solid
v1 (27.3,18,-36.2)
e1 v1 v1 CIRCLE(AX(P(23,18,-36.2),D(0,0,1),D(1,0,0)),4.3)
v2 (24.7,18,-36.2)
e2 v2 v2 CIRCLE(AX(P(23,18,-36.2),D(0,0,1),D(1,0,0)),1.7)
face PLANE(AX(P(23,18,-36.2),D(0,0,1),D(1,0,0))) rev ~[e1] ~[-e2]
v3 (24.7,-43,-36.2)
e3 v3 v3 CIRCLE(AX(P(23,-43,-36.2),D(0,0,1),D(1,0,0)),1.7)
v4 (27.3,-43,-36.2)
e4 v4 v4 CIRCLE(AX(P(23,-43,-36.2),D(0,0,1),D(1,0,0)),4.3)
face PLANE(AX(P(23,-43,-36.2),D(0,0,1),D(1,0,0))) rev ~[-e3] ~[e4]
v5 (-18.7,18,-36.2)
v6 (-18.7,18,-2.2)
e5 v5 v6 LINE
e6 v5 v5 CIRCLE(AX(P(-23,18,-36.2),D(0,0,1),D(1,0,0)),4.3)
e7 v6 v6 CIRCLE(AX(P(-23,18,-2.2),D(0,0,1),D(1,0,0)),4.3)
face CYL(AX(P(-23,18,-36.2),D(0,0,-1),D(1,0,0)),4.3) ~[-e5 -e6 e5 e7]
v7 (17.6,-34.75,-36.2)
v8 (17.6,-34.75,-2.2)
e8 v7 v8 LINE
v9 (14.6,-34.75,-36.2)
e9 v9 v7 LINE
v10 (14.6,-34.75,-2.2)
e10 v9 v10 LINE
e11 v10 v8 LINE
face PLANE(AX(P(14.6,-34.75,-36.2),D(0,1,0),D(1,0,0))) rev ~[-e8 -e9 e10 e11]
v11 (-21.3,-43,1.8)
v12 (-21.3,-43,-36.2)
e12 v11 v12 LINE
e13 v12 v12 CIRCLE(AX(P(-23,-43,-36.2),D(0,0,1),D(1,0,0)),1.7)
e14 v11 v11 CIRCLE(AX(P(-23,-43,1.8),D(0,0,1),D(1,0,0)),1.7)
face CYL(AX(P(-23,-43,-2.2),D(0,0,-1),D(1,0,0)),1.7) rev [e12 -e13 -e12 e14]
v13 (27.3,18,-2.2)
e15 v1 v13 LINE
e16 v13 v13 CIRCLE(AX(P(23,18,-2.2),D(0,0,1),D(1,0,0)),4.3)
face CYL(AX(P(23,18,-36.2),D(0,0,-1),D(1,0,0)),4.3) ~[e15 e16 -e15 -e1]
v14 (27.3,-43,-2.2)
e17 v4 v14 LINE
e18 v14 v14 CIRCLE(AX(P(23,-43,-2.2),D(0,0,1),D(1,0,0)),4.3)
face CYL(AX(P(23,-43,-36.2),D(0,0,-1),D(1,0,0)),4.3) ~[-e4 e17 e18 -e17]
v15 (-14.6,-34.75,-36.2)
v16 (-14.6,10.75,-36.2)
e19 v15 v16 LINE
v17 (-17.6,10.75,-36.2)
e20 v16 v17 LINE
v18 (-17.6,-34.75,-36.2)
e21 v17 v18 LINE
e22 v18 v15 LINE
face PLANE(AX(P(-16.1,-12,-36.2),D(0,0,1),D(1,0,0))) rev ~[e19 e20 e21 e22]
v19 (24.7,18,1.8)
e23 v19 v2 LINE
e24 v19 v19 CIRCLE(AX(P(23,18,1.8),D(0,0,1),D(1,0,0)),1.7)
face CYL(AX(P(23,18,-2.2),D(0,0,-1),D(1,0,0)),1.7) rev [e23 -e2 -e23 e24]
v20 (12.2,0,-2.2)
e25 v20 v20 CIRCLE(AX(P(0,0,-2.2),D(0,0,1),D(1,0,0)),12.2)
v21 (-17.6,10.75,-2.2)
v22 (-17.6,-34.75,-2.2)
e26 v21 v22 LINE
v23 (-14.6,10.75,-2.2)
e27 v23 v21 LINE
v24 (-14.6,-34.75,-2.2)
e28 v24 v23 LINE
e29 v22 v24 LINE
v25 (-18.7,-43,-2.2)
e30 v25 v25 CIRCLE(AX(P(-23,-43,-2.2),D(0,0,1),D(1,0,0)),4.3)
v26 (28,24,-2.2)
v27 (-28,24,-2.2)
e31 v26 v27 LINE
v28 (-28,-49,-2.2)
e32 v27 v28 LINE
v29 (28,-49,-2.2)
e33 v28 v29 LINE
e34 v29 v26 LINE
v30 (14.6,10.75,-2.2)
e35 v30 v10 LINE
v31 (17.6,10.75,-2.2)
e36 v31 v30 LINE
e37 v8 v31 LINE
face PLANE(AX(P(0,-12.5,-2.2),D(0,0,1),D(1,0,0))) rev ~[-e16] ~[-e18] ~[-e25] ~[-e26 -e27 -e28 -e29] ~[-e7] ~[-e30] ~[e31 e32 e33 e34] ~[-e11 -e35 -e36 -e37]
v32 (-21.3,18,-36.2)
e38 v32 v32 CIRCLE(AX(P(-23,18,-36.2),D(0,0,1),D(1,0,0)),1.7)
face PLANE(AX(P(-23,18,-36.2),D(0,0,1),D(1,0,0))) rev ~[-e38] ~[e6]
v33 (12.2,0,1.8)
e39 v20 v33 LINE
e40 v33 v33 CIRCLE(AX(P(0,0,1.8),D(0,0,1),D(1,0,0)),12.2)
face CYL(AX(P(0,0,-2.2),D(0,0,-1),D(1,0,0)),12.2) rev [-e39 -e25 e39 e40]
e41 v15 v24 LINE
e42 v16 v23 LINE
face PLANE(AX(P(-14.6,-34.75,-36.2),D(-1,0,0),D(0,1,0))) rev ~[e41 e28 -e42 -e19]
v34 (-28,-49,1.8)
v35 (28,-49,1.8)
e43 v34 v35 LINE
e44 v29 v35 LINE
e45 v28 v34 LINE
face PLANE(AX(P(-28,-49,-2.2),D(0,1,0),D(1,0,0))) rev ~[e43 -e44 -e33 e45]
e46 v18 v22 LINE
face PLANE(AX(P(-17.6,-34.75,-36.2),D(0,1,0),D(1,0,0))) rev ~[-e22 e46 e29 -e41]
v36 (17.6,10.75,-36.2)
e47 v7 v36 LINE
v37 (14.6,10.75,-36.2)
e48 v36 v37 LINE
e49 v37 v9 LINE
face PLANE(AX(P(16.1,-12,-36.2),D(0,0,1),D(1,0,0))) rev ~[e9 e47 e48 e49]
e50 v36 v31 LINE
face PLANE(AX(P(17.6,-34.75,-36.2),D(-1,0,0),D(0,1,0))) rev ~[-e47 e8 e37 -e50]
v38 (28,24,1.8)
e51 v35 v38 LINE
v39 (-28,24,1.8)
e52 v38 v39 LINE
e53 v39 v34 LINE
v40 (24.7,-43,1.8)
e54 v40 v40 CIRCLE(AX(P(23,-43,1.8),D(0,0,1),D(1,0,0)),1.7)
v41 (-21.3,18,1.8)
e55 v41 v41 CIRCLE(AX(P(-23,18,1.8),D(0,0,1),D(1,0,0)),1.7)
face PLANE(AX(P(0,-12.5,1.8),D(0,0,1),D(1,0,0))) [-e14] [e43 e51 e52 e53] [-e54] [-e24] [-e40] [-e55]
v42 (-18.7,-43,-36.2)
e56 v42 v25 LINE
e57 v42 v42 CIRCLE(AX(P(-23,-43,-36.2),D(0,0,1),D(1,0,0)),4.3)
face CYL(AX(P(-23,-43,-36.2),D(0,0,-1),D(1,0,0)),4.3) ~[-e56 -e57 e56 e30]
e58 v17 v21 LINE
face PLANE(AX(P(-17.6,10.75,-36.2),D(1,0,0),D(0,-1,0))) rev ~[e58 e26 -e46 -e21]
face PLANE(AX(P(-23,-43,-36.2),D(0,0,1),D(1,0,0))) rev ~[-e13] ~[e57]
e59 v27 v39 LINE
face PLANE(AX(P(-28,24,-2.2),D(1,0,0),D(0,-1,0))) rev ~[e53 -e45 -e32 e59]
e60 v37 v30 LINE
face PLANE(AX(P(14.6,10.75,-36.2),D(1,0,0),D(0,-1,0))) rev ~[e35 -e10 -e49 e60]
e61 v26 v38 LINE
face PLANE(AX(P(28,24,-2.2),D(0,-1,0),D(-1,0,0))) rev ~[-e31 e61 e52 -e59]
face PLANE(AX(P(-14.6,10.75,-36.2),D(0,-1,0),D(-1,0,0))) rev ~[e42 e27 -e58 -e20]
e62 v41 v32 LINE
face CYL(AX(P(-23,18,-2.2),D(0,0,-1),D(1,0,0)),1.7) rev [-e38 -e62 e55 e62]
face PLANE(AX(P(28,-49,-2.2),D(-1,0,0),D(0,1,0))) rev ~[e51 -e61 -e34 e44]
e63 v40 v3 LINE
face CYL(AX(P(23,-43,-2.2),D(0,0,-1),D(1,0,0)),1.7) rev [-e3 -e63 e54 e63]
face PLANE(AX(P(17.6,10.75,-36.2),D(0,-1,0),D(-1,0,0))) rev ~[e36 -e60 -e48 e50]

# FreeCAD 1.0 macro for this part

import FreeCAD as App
import Part
import Sketcher

V = App.Vector


def add_polygon(sketch, points):
    """Adds a closed chain of lines whose ends are joined by coincident constraints."""
    first, n = sketch.GeometryCount, len(points)
    for a, b in zip(points, points[1:] + points[:1]):
        sketch.addGeometry(Part.LineSegment(App.Vector(*a, 0), App.Vector(*b, 0)), False)
    for i in range(n):
        sketch.addConstraint(Sketcher.Constraint("Coincident", first + i, 2, first + (i + 1) % n, 1))

doc = App.newDocument("Part")
body = doc.addObject("PartDesign::Body", "Body")

# Sketch on XY plane
sketch1 = body.newObject("Sketcher::SketchObject", "Sketch")
sketch1.AttachmentSupport = (doc.getObject("XY_Plane"), [""])
sketch1.MapMode = "FlatFace"
sketch1.AttachmentOffset = App.Placement(V(0, 0, -2.2), App.Rotation())
add_polygon(sketch1, [(-28, 24), (-28, -49), (28, -49), (28, 24)])  # lines 0-3
sketch1.addGeometry(Part.Circle(V(-23, -43, 0), V(0, 0, 1), 1.7), False)  # 4
sketch1.addGeometry(Part.Circle(V(23, -43, 0), V(0, 0, 1), 1.7), False)  # 5
sketch1.addGeometry(Part.Circle(V(-23, 18, 0), V(0, 0, 1), 1.7), False)  # 6
sketch1.addGeometry(Part.Circle(V(0, 0, 0), V(0, 0, 1), 12.2), False)  # 7
sketch1.addGeometry(Part.Circle(V(23, 18, 0), V(0, 0, 1), 1.7), False)  # 8
sketch1.addConstraint(Sketcher.Constraint("Vertical", 0))
sketch1.addConstraint(Sketcher.Constraint("Horizontal", 1))
sketch1.addConstraint(Sketcher.Constraint("Vertical", 2))
sketch1.addConstraint(Sketcher.Constraint("Horizontal", 3))
sketch1.addConstraint(Sketcher.Constraint("Coincident", 7, 3, -1, 1))
sketch1.addConstraint(Sketcher.Constraint("Equal", 4, 5))
sketch1.addConstraint(Sketcher.Constraint("Equal", 5, 6))
sketch1.addConstraint(Sketcher.Constraint("Equal", 6, 8))
sketch1.addConstraint(Sketcher.Constraint("Symmetric", 4, 3, 5, 3, -2))
sketch1.addConstraint(Sketcher.Constraint("Symmetric", 6, 3, 8, 3, -2))
sketch1.addConstraint(Sketcher.Constraint("Vertical", 4, 3, 6, 3))
sketch1.addConstraint(Sketcher.Constraint("Diameter", 4, 3.4))
sketch1.addConstraint(Sketcher.Constraint("Diameter", 7, 24.4))
sketch1.addConstraint(Sketcher.Constraint("DistanceX", 1, 1, 1, 2, 56.0))
sketch1.addConstraint(Sketcher.Constraint("DistanceY", 0, 2, 0, 1, 73.0))
sketch1.addConstraint(Sketcher.Constraint("DistanceX", 4, 3, -1, 1, 23.0))
sketch1.addConstraint(Sketcher.Constraint("DistanceY", 4, 3, -1, 1, 43.0))
sketch1.addConstraint(Sketcher.Constraint("DistanceY", -1, 1, 6, 3, 18.0))
sketch1.addConstraint(Sketcher.Constraint("DistanceX", 0, 2, -1, 1, 28.0))
sketch1.addConstraint(Sketcher.Constraint("DistanceY", 0, 2, -1, 1, 49.0))
pad1 = body.newObject("PartDesign::Pad", "Pad")
pad1.Profile = sketch1
pad1.Length = 4

# Sketch on XY plane
sketch2 = body.newObject("Sketcher::SketchObject", "Sketch001")
sketch2.AttachmentSupport = (doc.getObject("XY_Plane"), [""])
sketch2.MapMode = "FlatFace"
sketch2.AttachmentOffset = App.Placement(V(0, 0, -36.2), App.Rotation())
sketch2.addGeometry(Part.Circle(V(-23, -43, 0), V(0, 0, 1), 4.3), False)
sketch2.addGeometry(Part.Circle(V(-23, -43, 0), V(0, 0, 1), 1.7), False)
sketch2.addConstraint(Sketcher.Constraint("Coincident", 1, 3, 0, 3))
sketch2.addConstraint(Sketcher.Constraint("Diameter", 0, 8.6))
sketch2.addConstraint(Sketcher.Constraint("Diameter", 1, 3.4))
sketch2.addConstraint(Sketcher.Constraint("DistanceX", 0, 3, -1, 1, 23.0))
sketch2.addConstraint(Sketcher.Constraint("DistanceY", 0, 3, -1, 1, 43.0))
pad2 = body.newObject("PartDesign::Pad", "Pad001")
pad2.Profile = sketch2
pad2.Length = 34

# Sketch on XY plane
sketch3 = body.newObject("Sketcher::SketchObject", "Sketch002")
sketch3.AttachmentSupport = (doc.getObject("XY_Plane"), [""])
sketch3.MapMode = "FlatFace"
sketch3.AttachmentOffset = App.Placement(V(0, 0, -36.2), App.Rotation())
sketch3.addGeometry(Part.Circle(V(23, -43, 0), V(0, 0, 1), 4.3), False)
sketch3.addGeometry(Part.Circle(V(23, -43, 0), V(0, 0, 1), 1.7), False)
sketch3.addConstraint(Sketcher.Constraint("Coincident", 1, 3, 0, 3))
sketch3.addConstraint(Sketcher.Constraint("Diameter", 0, 8.6))
sketch3.addConstraint(Sketcher.Constraint("Diameter", 1, 3.4))
sketch3.addConstraint(Sketcher.Constraint("DistanceX", -1, 1, 0, 3, 23.0))
sketch3.addConstraint(Sketcher.Constraint("DistanceY", 0, 3, -1, 1, 43.0))
pad3 = body.newObject("PartDesign::Pad", "Pad002")
pad3.Profile = sketch3
pad3.Length = 34

# Sketch on XY plane
sketch4 = body.newObject("Sketcher::SketchObject", "Sketch003")
sketch4.AttachmentSupport = (doc.getObject("XY_Plane"), [""])
sketch4.MapMode = "FlatFace"
sketch4.AttachmentOffset = App.Placement(V(0, 0, -36.2), App.Rotation())
sketch4.addGeometry(Part.Circle(V(-23, 18, 0), V(0, 0, 1), 4.3), False)
sketch4.addGeometry(Part.Circle(V(-23, 18, 0), V(0, 0, 1), 1.7), False)
sketch4.addConstraint(Sketcher.Constraint("Coincident", 1, 3, 0, 3))
sketch4.addConstraint(Sketcher.Constraint("Diameter", 0, 8.6))
sketch4.addConstraint(Sketcher.Constraint("Diameter", 1, 3.4))
sketch4.addConstraint(Sketcher.Constraint("DistanceX", 0, 3, -1, 1, 23.0))
sketch4.addConstraint(Sketcher.Constraint("DistanceY", -1, 1, 0, 3, 18.0))
pad4 = body.newObject("PartDesign::Pad", "Pad003")
pad4.Profile = sketch4
pad4.Length = 34

# Sketch on XY plane
sketch5 = body.newObject("Sketcher::SketchObject", "Sketch004")
sketch5.AttachmentSupport = (doc.getObject("XY_Plane"), [""])
sketch5.MapMode = "FlatFace"
sketch5.AttachmentOffset = App.Placement(V(0, 0, -36.2), App.Rotation())
sketch5.addGeometry(Part.Circle(V(23, 18, 0), V(0, 0, 1), 4.3), False)
sketch5.addGeometry(Part.Circle(V(23, 18, 0), V(0, 0, 1), 1.7), False)
sketch5.addConstraint(Sketcher.Constraint("Coincident", 1, 3, 0, 3))
sketch5.addConstraint(Sketcher.Constraint("Diameter", 0, 8.6))
sketch5.addConstraint(Sketcher.Constraint("Diameter", 1, 3.4))
sketch5.addConstraint(Sketcher.Constraint("DistanceX", -1, 1, 0, 3, 23.0))
sketch5.addConstraint(Sketcher.Constraint("DistanceY", -1, 1, 0, 3, 18.0))
pad5 = body.newObject("PartDesign::Pad", "Pad004")
pad5.Profile = sketch5
pad5.Length = 34

# Sketch on XY plane
sketch6 = body.newObject("Sketcher::SketchObject", "Sketch005")
sketch6.AttachmentSupport = (doc.getObject("XY_Plane"), [""])
sketch6.MapMode = "FlatFace"
sketch6.AttachmentOffset = App.Placement(V(0, 0, -36.2), App.Rotation())
add_polygon(sketch6, [(-17.6, 10.8), (-17.6, -34.8), (-14.6, -34.8), (-14.6, 10.8)])  # lines 0-3
sketch6.addConstraint(Sketcher.Constraint("Vertical", 0))
sketch6.addConstraint(Sketcher.Constraint("Horizontal", 1))
sketch6.addConstraint(Sketcher.Constraint("Vertical", 2))
sketch6.addConstraint(Sketcher.Constraint("Horizontal", 3))
sketch6.addConstraint(Sketcher.Constraint("DistanceX", 1, 1, 1, 2, 3.0))
sketch6.addConstraint(Sketcher.Constraint("DistanceY", 0, 2, 0, 1, 45.5))
sketch6.addConstraint(Sketcher.Constraint("DistanceX", 0, 2, -1, 1, 17.6))
sketch6.addConstraint(Sketcher.Constraint("DistanceY", 0, 2, -1, 1, 34.75))
pad6 = body.newObject("PartDesign::Pad", "Pad005")
pad6.Profile = sketch6
pad6.Length = 34

# Sketch on XY plane
sketch7 = body.newObject("Sketcher::SketchObject", "Sketch006")
sketch7.AttachmentSupport = (doc.getObject("XY_Plane"), [""])
sketch7.MapMode = "FlatFace"
sketch7.AttachmentOffset = App.Placement(V(0, 0, -36.2), App.Rotation())
add_polygon(sketch7, [(14.6, 10.8), (14.6, -34.8), (17.6, -34.8), (17.6, 10.8)])  # lines 0-3
sketch7.addConstraint(Sketcher.Constraint("Vertical", 0))
sketch7.addConstraint(Sketcher.Constraint("Horizontal", 1))
sketch7.addConstraint(Sketcher.Constraint("Vertical", 2))
sketch7.addConstraint(Sketcher.Constraint("Horizontal", 3))
sketch7.addConstraint(Sketcher.Constraint("DistanceX", 1, 1, 1, 2, 3.0))
sketch7.addConstraint(Sketcher.Constraint("DistanceY", 0, 2, 0, 1, 45.5))
sketch7.addConstraint(Sketcher.Constraint("DistanceX", -1, 1, 0, 2, 14.6))
sketch7.addConstraint(Sketcher.Constraint("DistanceY", 0, 2, -1, 1, 34.75))
pad7 = body.newObject("PartDesign::Pad", "Pad006")
pad7.Profile = sketch7
pad7.Length = 34

doc.recompute()
